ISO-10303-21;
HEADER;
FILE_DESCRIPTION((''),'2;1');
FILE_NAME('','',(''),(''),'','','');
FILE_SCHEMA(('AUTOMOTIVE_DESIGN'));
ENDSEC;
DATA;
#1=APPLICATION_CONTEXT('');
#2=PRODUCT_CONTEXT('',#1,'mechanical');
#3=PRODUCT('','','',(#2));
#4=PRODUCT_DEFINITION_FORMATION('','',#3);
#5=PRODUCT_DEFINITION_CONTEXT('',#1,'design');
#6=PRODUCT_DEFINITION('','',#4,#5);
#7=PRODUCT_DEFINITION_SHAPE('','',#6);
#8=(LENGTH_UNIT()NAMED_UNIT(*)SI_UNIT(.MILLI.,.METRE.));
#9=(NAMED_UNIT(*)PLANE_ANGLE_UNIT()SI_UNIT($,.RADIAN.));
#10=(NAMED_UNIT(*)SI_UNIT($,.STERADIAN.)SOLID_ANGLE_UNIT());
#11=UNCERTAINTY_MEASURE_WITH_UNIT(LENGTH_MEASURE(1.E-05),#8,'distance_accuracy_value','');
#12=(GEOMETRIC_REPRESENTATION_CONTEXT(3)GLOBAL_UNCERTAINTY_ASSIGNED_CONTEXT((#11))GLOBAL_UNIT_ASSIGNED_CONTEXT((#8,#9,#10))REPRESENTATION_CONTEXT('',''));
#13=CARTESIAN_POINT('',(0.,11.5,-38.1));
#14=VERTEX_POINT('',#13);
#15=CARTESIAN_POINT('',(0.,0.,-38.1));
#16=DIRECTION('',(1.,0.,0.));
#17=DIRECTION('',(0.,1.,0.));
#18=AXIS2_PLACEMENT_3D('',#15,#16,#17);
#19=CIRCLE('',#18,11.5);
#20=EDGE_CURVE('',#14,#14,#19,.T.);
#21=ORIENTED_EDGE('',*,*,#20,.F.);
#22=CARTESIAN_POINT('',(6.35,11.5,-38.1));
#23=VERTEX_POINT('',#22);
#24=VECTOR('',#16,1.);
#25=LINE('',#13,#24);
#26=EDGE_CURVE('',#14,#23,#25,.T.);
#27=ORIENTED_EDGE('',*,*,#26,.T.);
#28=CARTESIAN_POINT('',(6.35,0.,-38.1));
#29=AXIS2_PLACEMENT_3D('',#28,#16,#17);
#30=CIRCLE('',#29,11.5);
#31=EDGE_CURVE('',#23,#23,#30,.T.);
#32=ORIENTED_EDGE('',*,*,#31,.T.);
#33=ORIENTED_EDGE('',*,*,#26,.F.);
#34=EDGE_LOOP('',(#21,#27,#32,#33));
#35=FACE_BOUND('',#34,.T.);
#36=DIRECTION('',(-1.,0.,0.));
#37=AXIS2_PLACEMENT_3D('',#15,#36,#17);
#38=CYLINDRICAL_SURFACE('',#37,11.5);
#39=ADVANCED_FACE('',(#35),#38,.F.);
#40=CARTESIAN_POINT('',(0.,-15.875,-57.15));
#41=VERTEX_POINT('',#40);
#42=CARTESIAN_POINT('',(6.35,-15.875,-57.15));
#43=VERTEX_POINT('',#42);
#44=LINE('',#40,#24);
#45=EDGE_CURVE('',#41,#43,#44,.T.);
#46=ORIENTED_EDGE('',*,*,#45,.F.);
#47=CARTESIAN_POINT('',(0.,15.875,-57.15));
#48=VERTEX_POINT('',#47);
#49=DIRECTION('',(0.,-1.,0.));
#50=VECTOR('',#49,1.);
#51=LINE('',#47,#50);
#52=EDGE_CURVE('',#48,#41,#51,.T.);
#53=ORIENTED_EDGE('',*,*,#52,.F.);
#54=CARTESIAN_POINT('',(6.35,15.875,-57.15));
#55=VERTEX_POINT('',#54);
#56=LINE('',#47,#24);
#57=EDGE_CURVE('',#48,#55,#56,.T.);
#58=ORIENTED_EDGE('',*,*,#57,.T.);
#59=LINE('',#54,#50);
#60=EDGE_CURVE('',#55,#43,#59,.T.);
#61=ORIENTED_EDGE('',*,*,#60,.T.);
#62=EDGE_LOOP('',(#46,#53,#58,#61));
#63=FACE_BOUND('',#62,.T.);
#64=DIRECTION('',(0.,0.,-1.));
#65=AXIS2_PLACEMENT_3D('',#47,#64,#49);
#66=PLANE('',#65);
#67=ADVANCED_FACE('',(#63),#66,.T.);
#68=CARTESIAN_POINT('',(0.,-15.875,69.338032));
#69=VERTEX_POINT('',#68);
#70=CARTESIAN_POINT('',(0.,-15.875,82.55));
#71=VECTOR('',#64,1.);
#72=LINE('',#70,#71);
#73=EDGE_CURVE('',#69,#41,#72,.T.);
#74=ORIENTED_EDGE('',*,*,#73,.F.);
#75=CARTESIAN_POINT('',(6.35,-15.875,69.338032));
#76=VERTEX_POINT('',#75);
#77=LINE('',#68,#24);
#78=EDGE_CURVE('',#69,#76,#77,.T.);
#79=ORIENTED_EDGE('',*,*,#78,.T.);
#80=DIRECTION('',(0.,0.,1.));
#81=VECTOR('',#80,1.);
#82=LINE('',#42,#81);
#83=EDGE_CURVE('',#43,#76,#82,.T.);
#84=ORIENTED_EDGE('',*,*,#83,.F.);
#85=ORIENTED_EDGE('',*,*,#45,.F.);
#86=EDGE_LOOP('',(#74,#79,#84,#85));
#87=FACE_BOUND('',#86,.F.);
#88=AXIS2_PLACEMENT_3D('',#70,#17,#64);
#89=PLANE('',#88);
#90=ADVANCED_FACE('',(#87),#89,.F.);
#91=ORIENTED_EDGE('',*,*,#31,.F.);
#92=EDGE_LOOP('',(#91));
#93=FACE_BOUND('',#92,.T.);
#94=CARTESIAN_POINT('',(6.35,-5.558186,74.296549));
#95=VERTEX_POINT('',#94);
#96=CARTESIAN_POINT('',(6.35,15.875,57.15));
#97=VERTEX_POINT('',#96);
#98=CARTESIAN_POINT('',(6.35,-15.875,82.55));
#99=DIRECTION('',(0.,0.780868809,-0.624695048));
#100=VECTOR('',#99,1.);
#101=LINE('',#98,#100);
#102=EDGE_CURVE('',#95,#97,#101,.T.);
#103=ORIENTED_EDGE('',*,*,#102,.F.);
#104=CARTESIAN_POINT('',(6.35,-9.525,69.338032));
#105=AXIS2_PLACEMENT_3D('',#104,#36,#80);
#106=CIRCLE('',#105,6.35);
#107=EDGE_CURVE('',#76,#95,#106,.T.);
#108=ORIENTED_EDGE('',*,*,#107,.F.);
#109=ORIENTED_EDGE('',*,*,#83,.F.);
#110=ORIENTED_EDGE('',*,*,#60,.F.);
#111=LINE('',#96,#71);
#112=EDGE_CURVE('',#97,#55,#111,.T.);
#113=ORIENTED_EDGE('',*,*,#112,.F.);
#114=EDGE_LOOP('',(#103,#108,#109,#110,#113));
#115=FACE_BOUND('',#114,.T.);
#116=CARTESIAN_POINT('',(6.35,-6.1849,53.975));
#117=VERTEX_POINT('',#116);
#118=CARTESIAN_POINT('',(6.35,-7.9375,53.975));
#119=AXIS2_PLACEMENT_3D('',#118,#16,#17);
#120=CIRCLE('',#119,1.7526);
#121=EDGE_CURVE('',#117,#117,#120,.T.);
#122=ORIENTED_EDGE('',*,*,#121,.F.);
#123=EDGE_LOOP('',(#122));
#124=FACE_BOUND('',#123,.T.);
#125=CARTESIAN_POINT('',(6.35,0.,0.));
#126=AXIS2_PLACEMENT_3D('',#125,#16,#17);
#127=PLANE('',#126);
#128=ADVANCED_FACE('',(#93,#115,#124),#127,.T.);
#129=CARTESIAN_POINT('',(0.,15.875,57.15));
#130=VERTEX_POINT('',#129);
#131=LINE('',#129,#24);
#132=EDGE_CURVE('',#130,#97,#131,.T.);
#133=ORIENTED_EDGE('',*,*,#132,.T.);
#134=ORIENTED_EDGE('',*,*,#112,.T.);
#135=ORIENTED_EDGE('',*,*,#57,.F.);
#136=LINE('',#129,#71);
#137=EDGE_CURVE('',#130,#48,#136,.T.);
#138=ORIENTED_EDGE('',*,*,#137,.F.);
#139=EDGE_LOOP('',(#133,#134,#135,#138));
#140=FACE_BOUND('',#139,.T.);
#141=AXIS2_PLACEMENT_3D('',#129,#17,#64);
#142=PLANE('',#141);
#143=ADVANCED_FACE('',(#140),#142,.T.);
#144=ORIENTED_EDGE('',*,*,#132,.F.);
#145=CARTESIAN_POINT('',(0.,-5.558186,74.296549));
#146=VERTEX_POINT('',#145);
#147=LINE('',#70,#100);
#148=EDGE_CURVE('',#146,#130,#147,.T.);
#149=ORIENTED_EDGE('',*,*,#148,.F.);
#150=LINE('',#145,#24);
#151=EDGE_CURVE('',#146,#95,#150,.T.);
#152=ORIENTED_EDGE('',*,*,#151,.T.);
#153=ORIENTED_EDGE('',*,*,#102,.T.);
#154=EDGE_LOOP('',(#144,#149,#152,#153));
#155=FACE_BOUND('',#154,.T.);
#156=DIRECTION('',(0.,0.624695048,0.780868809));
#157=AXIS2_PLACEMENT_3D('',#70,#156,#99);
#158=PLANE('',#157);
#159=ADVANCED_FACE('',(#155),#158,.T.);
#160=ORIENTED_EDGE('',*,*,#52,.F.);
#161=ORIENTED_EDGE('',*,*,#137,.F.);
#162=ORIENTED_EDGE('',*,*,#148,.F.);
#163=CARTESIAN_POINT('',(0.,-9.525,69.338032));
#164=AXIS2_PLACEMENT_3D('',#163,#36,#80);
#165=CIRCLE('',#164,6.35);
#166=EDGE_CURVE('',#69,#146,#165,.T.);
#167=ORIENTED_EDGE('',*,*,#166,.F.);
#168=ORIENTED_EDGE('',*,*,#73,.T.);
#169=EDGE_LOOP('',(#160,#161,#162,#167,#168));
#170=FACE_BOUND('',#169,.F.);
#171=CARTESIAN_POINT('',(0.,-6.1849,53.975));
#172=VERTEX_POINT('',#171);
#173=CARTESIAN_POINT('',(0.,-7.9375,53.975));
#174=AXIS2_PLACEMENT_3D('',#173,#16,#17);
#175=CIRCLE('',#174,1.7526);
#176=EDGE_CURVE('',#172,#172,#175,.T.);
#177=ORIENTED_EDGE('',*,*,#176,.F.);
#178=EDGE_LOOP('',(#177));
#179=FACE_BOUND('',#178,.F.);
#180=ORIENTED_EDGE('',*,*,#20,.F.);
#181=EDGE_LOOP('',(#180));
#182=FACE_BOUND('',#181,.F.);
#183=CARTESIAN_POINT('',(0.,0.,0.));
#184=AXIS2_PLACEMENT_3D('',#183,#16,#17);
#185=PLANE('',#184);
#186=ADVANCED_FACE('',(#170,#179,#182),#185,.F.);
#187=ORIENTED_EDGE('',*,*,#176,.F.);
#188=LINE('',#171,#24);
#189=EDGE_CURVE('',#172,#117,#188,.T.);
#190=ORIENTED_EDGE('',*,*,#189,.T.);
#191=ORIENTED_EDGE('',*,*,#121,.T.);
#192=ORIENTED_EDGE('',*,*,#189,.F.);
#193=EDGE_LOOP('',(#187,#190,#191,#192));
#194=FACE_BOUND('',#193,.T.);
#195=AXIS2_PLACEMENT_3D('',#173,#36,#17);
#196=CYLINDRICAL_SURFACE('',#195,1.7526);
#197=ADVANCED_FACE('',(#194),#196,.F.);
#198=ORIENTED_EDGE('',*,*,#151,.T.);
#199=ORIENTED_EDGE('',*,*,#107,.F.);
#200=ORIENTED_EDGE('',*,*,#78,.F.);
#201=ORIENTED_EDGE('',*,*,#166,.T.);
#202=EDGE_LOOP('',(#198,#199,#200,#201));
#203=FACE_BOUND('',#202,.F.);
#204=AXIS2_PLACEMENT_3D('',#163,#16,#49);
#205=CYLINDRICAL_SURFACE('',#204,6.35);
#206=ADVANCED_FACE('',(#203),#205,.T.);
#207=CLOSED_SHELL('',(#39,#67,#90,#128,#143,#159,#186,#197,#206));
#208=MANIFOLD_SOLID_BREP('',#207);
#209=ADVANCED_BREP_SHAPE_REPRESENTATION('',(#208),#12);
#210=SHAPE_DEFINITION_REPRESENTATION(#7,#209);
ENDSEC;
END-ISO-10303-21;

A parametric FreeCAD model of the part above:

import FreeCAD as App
import Part
import Sketcher
Q = App.Units.Quantity


def edges_at(feature, points):
    """Names of the edges that pass closest to the given points."""
    edges = feature.Shape.Edges
    near = lambda p: min(range(len(edges)), key=lambda i: edges[i].distToShape(Part.Vertex(*p))[0])
    return sorted({f"Edge{near(p) + 1}" for p in points})


def add_polygon(sketch, points):
    """Adds a closed chain of lines whose ends are joined by coincident constraints."""
    first, n = sketch.GeometryCount, len(points)
    for a, b in zip(points, points[1:] + points[:1]):
        sketch.addGeometry(Part.LineSegment(App.Vector(*a, 0), App.Vector(*b, 0)), False)
    for i in range(n):
        sketch.addConstraint(Sketcher.Constraint("Coincident", first + i, 2, first + (i + 1) % n, 1))

doc = App.newDocument("Part")
params = doc.addObject("Spreadsheet::Sheet", "Params")
for row, (alias, value) in enumerate([
    ("sketch1_diameter", "0.138 in"),
    ("sketch1_height", "4.5 in"),
    ("sketch1_width", "1.25 in"),
    ("pad1_length", "0.25 in"),
    ("fillet_radius", "0.25 in"),
], start=1):
    params.set(f"A{row}", alias)
    params.set(f"B{row}", "=" + value)
    params.setAlias(f"B{row}", alias)

body = doc.addObject("PartDesign::Body", "Body")

sketch1 = doc.addObject("Sketcher::SketchObject", "Sketch")
body.addObject(sketch1)
sketch1.AttachmentSupport = (doc.YZ_Plane, [""])
sketch1.MapMode = "FlatFace"
add_polygon(sketch1, [(-15.875, 82.55), (-15.875, -57.15), (15.875, -57.15), (15.875, 57.15)])
sketch1.addGeometry(Part.Circle(App.Vector(-7.9375, 53.975, 0), App.Vector(0, 0, 1), 1.7526), False)
sketch1.addGeometry(Part.Circle(App.Vector(0, -38.1, 0), App.Vector(0, 0, 1), 11.5), False)
sketch1.addConstraint([
    Sketcher.Constraint("Vertical", 0),
    Sketcher.Constraint("Horizontal", 1),
    Sketcher.Constraint("Vertical", 2),
    Sketcher.Constraint("Symmetric", 0, 2, 2, 2, -1, 1),
    Sketcher.Constraint("PointOnObject", 5, 3, -2),
    Sketcher.Constraint("Diameter", 4, Q("0.138 in")),
    Sketcher.Constraint("DistanceY", 2, 1, 2, 2, Q("4.5 in")),
    Sketcher.Constraint("DistanceY", 2, 2, 3, 2, Q("1 in")),
    Sketcher.Constraint("Diameter", 5, Q("0.9055 in")),
    Sketcher.Constraint("DistanceX", 1, 1, 1, 2, Q("1.25 in")),
    Sketcher.Constraint("DistanceY", 5, 3, 4, 3, Q("3.625 in")),
    Sketcher.Constraint("DistanceY", 5, 3, -1, 1, Q("1.5 in")),
    Sketcher.Constraint("DistanceX", 4, 3, -1, 1, Q("0.3125 in")),
])
sketch1.setExpression("Constraints[9]", "Params.sketch1_diameter")
sketch1.setExpression("Constraints[10]", "Params.sketch1_height")
sketch1.setExpression("Constraints[13]", "Params.sketch1_width")
pad1 = doc.addObject("PartDesign::Pad", "Pad")
body.addObject(pad1)
pad1.Profile = sketch1
pad1.setExpression("Length", "Params.pad1_length")
doc.recompute()

fillet = doc.addObject("PartDesign::Fillet", "Fillet")
body.addObject(fillet)
fillet.Base = (pad1, edges_at(pad1, [(3.175, -15.875, 82.55)]))
fillet.setExpression("Radius", "Params.fillet_radius")

doc.recompute()
